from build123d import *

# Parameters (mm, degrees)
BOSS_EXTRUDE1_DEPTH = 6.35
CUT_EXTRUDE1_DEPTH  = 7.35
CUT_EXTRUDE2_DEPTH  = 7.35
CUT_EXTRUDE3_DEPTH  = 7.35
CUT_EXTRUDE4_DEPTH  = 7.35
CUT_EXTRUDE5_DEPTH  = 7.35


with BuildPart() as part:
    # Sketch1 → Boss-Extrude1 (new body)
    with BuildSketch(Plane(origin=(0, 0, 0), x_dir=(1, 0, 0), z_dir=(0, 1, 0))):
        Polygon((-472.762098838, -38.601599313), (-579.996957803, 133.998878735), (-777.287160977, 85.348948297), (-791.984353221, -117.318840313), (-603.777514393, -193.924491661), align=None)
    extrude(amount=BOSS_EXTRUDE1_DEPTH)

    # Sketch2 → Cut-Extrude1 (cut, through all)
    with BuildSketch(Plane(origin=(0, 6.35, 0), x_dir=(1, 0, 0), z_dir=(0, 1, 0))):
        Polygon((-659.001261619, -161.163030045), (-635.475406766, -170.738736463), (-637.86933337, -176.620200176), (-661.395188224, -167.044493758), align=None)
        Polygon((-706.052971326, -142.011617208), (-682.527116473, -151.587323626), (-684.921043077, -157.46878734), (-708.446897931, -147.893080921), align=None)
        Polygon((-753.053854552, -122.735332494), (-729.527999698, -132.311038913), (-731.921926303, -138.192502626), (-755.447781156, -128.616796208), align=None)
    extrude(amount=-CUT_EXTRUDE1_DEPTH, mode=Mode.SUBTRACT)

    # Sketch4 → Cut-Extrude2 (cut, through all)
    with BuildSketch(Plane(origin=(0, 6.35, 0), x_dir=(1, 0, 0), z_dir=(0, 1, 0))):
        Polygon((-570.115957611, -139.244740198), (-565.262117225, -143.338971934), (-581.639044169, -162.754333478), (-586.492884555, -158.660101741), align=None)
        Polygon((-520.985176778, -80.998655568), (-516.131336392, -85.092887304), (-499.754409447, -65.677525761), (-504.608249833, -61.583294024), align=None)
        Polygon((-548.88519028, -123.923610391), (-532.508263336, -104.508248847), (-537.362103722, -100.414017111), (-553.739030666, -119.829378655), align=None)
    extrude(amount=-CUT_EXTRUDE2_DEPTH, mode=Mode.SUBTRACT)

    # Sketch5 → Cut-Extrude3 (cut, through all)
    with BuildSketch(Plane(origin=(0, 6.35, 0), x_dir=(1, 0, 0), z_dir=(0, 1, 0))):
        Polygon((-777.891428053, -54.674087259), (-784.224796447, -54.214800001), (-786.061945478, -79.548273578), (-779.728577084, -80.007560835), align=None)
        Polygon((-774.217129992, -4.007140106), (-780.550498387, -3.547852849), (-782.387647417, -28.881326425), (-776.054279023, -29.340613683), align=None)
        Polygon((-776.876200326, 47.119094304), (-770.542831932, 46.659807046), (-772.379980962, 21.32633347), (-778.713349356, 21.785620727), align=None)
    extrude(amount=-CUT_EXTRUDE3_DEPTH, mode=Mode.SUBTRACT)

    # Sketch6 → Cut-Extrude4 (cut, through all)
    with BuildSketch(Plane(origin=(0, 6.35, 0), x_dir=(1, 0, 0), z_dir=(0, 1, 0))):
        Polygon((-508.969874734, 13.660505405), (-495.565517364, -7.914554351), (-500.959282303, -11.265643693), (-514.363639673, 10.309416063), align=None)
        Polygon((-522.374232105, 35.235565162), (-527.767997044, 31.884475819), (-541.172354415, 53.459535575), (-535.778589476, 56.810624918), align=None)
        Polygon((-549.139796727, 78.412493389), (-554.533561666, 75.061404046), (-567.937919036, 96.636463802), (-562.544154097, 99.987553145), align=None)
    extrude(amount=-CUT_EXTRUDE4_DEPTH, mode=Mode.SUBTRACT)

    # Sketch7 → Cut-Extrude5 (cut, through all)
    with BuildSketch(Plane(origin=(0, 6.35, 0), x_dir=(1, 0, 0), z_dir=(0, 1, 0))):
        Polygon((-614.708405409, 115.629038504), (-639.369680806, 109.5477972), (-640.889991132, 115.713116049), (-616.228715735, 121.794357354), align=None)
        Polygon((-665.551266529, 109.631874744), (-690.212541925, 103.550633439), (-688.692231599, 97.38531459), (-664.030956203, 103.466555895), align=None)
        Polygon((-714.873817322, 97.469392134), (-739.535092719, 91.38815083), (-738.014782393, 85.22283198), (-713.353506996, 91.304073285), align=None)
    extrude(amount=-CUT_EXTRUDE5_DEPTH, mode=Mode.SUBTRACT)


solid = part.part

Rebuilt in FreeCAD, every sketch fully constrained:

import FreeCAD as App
import Part
import Sketcher
Q = App.Units.Quantity

doc = App.newDocument("Part")
body = doc.addObject("PartDesign::Body", "Body")

# Sketch on XZ plane
sketch1 = body.newObject("Sketcher::SketchObject", "Sketch")
sketch1.AttachmentSupport = (doc.getObject("XZ_Plane"), [""])
sketch1.MapMode = "FlatFace"
sketch1.addGeometry([
    Part.LineSegment(App.Vector(-472.762099, 38.601599, 0), App.Vector(-579.996958, -133.998879, 0)),  # 0
    Part.LineSegment(App.Vector(-579.996958, -133.998879, 0), App.Vector(-777.287161, -85.348948, 0)),  # 1
    Part.LineSegment(App.Vector(-777.287161, -85.348948, 0), App.Vector(-791.984353, 117.31884, 0)),  # 2
    Part.LineSegment(App.Vector(-791.984353, 117.31884, 0), App.Vector(-603.777514, 193.924492, 0)),  # 3
    Part.LineSegment(App.Vector(-603.777514, 193.924492, 0), App.Vector(-472.762099, 38.601599, 0)),  # 4
], False)
sketch1.addConstraint([
    Sketcher.Constraint("Coincident", 0, 2, 1, 1),
    Sketcher.Constraint("Coincident", 1, 2, 2, 1),
    Sketcher.Constraint("Coincident", 2, 2, 3, 1),
    Sketcher.Constraint("Coincident", 3, 2, 4, 1),
    Sketcher.Constraint("Coincident", 4, 2, 0, 1),
    Sketcher.Constraint("Equal", 0, 1),
    Sketcher.Constraint("Equal", 1, 2),
    Sketcher.Constraint("Equal", 2, 3),
    Sketcher.Constraint("Equal", 3, 4),
    Sketcher.Constraint("Distance", 0, Q("8 in")),
    Sketcher.Constraint("DistanceX", 4, 2, -1, 1, 472.762099),
    Sketcher.Constraint("DistanceY", -1, 1, 4, 2, 38.601599),
    Sketcher.Constraint("DistanceY", 0, 2, -1, 1, 133.998879),
    Sketcher.Constraint("DistanceX", 1, 2, -1, 1, 777.287161),
    Sketcher.Constraint("DistanceY", -1, 1, 2, 2, 117.31884),
])
pad1 = body.newObject("PartDesign::Pad", "Pad")
pad1.Profile = sketch1
pad1.Length = Q("0.25 in")
pad1.Reversed = True

# Sketch on XZ plane
sketch2 = body.newObject("Sketcher::SketchObject", "Sketch001")
sketch2.AttachmentSupport = (doc.getObject("XZ_Plane"), [""])
sketch2.MapMode = "FlatFace"
sketch2.AttachmentOffset = App.Placement(App.Vector(0, 0, -0.25 * 25.4), App.Rotation())
sketch2.addGeometry([
    Part.LineSegment(App.Vector(-635.475407, 170.738736, 0), App.Vector(-659.001262, 161.16303, 0)),  # 0
    Part.LineSegment(App.Vector(-659.001262, 161.16303, 0), App.Vector(-661.395188, 167.044494, 0)),  # 1
    Part.LineSegment(App.Vector(-661.395188, 167.044494, 0), App.Vector(-637.869333, 176.6202, 0)),  # 2
    Part.LineSegment(App.Vector(-637.869333, 176.6202, 0), App.Vector(-635.475407, 170.738736, 0)),  # 3
    Part.LineSegment(App.Vector(-682.527116, 151.587324, 0), App.Vector(-706.052971, 142.011617, 0)),  # 4
    Part.LineSegment(App.Vector(-706.052971, 142.011617, 0), App.Vector(-708.446898, 147.893081, 0)),  # 5
    Part.LineSegment(App.Vector(-708.446898, 147.893081, 0), App.Vector(-684.921043, 157.468787, 0)),  # 6
    Part.LineSegment(App.Vector(-684.921043, 157.468787, 0), App.Vector(-682.527116, 151.587324, 0)),  # 7
    Part.LineSegment(App.Vector(-729.528, 132.311039, 0), App.Vector(-753.053855, 122.735332, 0)),  # 8
    Part.LineSegment(App.Vector(-753.053855, 122.735332, 0), App.Vector(-755.447781, 128.616796, 0)),  # 9
    Part.LineSegment(App.Vector(-755.447781, 128.616796, 0), App.Vector(-731.921926, 138.192503, 0)),  # 10
    Part.LineSegment(App.Vector(-731.921926, 138.192503, 0), App.Vector(-729.528, 132.311039, 0)),  # 11
], False)
sketch2.addConstraint([
    Sketcher.Constraint("Coincident", 0, 2, 1, 1),
    Sketcher.Constraint("Coincident", 1, 2, 2, 1),
    Sketcher.Constraint("Coincident", 2, 2, 3, 1),
    Sketcher.Constraint("Coincident", 3, 2, 0, 1),
    Sketcher.Constraint("Coincident", 4, 2, 5, 1),
    Sketcher.Constraint("Coincident", 5, 2, 6, 1),
    Sketcher.Constraint("Coincident", 6, 2, 7, 1),
    Sketcher.Constraint("Coincident", 7, 2, 4, 1),
    Sketcher.Constraint("Coincident", 8, 2, 9, 1),
    Sketcher.Constraint("Coincident", 9, 2, 10, 1),
    Sketcher.Constraint("Coincident", 10, 2, 11, 1),
    Sketcher.Constraint("Coincident", 11, 2, 8, 1),
    Sketcher.Constraint("Perpendicular", 0, 1),
    Sketcher.Constraint("Perpendicular", 1, 2),
    Sketcher.Constraint("Perpendicular", 2, 3),
    Sketcher.Constraint("Perpendicular", 3, 4),
    Sketcher.Constraint("Perpendicular", 4, 5),
    Sketcher.Constraint("Perpendicular", 5, 6),
    Sketcher.Constraint("Perpendicular", 6, 7),
    Sketcher.Constraint("Perpendicular", 7, 8),
    Sketcher.Constraint("Perpendicular", 8, 9),
    Sketcher.Constraint("Perpendicular", 9, 10),
    Sketcher.Constraint("Perpendicular", 10, 11),
    Sketcher.Constraint("Equal", 2, 4),
    Sketcher.Constraint("Equal", 3, 5),
    Sketcher.Constraint("Equal", 6, 8),
    Sketcher.Constraint("Equal", 7, 9),
    Sketcher.Constraint("Distance", 0, Q("1 in")),
    Sketcher.Constraint("Distance", 1, Q("0.25 in")),
    Sketcher.Constraint("DistanceY", -1, 1, 2, 2, 176.6202),
    Sketcher.Constraint("DistanceX", 11, 2, -1, 1, 729.528),
    Sketcher.Constraint("DistanceX", 11, 2, 5, 2, 21.081102),
    Sketcher.Constraint("DistanceX", 0, 2, -1, 1, 659.001262),
    Sketcher.Constraint("DistanceY", -1, 1, 0, 2, 161.16303),
    Sketcher.Constraint("DistanceY", -1, 1, 5, 2, 147.893081),
    Sketcher.Constraint("DistanceY", -1, 1, 11, 2, 132.311039),
])
pocket1 = body.newObject("PartDesign::Pocket", "Pocket")
pocket1.Profile = sketch2
pocket1.Type = "ThroughAll"
pocket1.Reversed = True

# Sketch on XZ plane
sketch3 = body.newObject("Sketcher::SketchObject", "Sketch002")
sketch3.AttachmentSupport = (doc.getObject("XZ_Plane"), [""])
sketch3.MapMode = "FlatFace"
sketch3.AttachmentOffset = App.Placement(App.Vector(0, 0, -0.25 * 25.4), App.Rotation())
sketch3.addGeometry([
    Part.LineSegment(App.Vector(-565.262117, 143.338972, 0), App.Vector(-570.115958, 139.24474, 0)),  # 0
    Part.LineSegment(App.Vector(-570.115958, 139.24474, 0), App.Vector(-586.492885, 158.660102, 0)),  # 1
    Part.LineSegment(App.Vector(-586.492885, 158.660102, 0), App.Vector(-581.639044, 162.754333, 0)),  # 2
    Part.LineSegment(App.Vector(-581.639044, 162.754333, 0), App.Vector(-565.262117, 143.338972, 0)),  # 3
    Part.LineSegment(App.Vector(-520.985177, 80.998656, 0), App.Vector(-516.131336, 85.092887, 0)),  # 4
    Part.LineSegment(App.Vector(-516.131336, 85.092887, 0), App.Vector(-499.754409, 65.677526, 0)),  # 5
    Part.LineSegment(App.Vector(-499.754409, 65.677526, 0), App.Vector(-504.60825, 61.583294, 0)),  # 6
    Part.LineSegment(App.Vector(-504.60825, 61.583294, 0), App.Vector(-520.985177, 80.998656, 0)),  # 7
    Part.LineSegment(App.Vector(-548.88519, 123.92361, 0), App.Vector(-532.508263, 104.508249, 0)),  # 8
    Part.LineSegment(App.Vector(-532.508263, 104.508249, 0), App.Vector(-537.362104, 100.414017, 0)),  # 9
    Part.LineSegment(App.Vector(-537.362104, 100.414017, 0), App.Vector(-553.739031, 119.829379, 0)),  # 10
    Part.LineSegment(App.Vector(-553.739031, 119.829379, 0), App.Vector(-548.88519, 123.92361, 0)),  # 11
], False)
sketch3.addConstraint([
    Sketcher.Constraint("Coincident", 0, 2, 1, 1),
    Sketcher.Constraint("Coincident", 1, 2, 2, 1),
    Sketcher.Constraint("Coincident", 2, 2, 3, 1),
    Sketcher.Constraint("Coincident", 3, 2, 0, 1),
    Sketcher.Constraint("Coincident", 4, 2, 5, 1),
    Sketcher.Constraint("Coincident", 5, 2, 6, 1),
    Sketcher.Constraint("Coincident", 6, 2, 7, 1),
    Sketcher.Constraint("Coincident", 7, 2, 4, 1),
    Sketcher.Constraint("Coincident", 8, 2, 9, 1),
    Sketcher.Constraint("Coincident", 9, 2, 10, 1),
    Sketcher.Constraint("Coincident", 10, 2, 11, 1),
    Sketcher.Constraint("Coincident", 11, 2, 8, 1),
    Sketcher.Constraint("Perpendicular", 0, 1),
    Sketcher.Constraint("Perpendicular", 1, 2),
    Sketcher.Constraint("Perpendicular", 2, 3),
    Sketcher.Constraint("Perpendicular", 3, 4),
    Sketcher.Constraint("Perpendicular", 4, 5),
    Sketcher.Constraint("Perpendicular", 5, 6),
    Sketcher.Constraint("Perpendicular", 6, 7),
    Sketcher.Constraint("Parallel", 7, 8),
    Sketcher.Constraint("Perpendicular", 8, 9),
    Sketcher.Constraint("Perpendicular", 9, 10),
    Sketcher.Constraint("Perpendicular", 10, 11),
    Sketcher.Constraint("Equal", 2, 4),
    Sketcher.Constraint("Equal", 3, 5),
    Sketcher.Constraint("Equal", 7, 8),
    Sketcher.Constraint("Equal", 6, 9),
    Sketcher.Constraint("Distance", 1, Q("1 in")),
    Sketcher.Constraint("Distance", 0, Q("0.25 in")),
    Sketcher.Constraint("DistanceY", -1, 1, 1, 2, 158.660102),
    Sketcher.Constraint("DistanceY", -1, 1, 0, 2, 139.24474),
    Sketcher.Constraint("DistanceX", 5, 2, -1, 1, 499.754409),
    Sketcher.Constraint("DistanceY", -1, 1, 8, 2, 104.508249),
    Sketcher.Constraint("DistanceX", 10, 2, -1, 1, 553.739031),
    Sketcher.Constraint("DistanceX", 3, 2, 4, 2, 49.130781),
    Sketcher.Constraint("DistanceY", 4, 2, 8, 2, 19.415362),
])
pocket2 = body.newObject("PartDesign::Pocket", "Pocket001")
pocket2.Profile = sketch3
pocket2.Type = "ThroughAll"
pocket2.Reversed = True

# Sketch on XZ plane
sketch4 = body.newObject("Sketcher::SketchObject", "Sketch003")
sketch4.AttachmentSupport = (doc.getObject("XZ_Plane"), [""])
sketch4.MapMode = "FlatFace"
sketch4.AttachmentOffset = App.Placement(App.Vector(0, 0, -0.25 * 25.4), App.Rotation())
sketch4.addGeometry([
    Part.LineSegment(App.Vector(-777.891428, 54.674087, 0), App.Vector(-784.224796, 54.2148, 0)),  # 0
    Part.LineSegment(App.Vector(-784.224796, 54.2148, 0), App.Vector(-786.061945, 79.548274, 0)),  # 1
    Part.LineSegment(App.Vector(-786.061945, 79.548274, 0), App.Vector(-779.728577, 80.007561, 0)),  # 2
    Part.LineSegment(App.Vector(-779.728577, 80.007561, 0), App.Vector(-777.891428, 54.674087, 0)),  # 3
    Part.LineSegment(App.Vector(-774.21713, 4.00714, 0), App.Vector(-780.550498, 3.547853, 0)),  # 4
    Part.LineSegment(App.Vector(-780.550498, 3.547853, 0), App.Vector(-782.387647, 28.881326, 0)),  # 5
    Part.LineSegment(App.Vector(-782.387647, 28.881326, 0), App.Vector(-776.054279, 29.340614, 0)),  # 6
    Part.LineSegment(App.Vector(-776.054279, 29.340614, 0), App.Vector(-774.21713, 4.00714, 0)),  # 7
    Part.LineSegment(App.Vector(-770.542832, -46.659807, 0), App.Vector(-776.8762, -47.119094, 0)),  # 8
    Part.LineSegment(App.Vector(-776.8762, -47.119094, 0), App.Vector(-778.713349, -21.785621, 0)),  # 9
    Part.LineSegment(App.Vector(-778.713349, -21.785621, 0), App.Vector(-772.379981, -21.326333, 0)),  # 10
    Part.LineSegment(App.Vector(-772.379981, -21.326333, 0), App.Vector(-770.542832, -46.659807, 0)),  # 11
], False)
sketch4.addConstraint([
    Sketcher.Constraint("Coincident", 0, 2, 1, 1),
    Sketcher.Constraint("Coincident", 1, 2, 2, 1),
    Sketcher.Constraint("Coincident", 2, 2, 3, 1),
    Sketcher.Constraint("Coincident", 3, 2, 0, 1),
    Sketcher.Constraint("Coincident", 4, 2, 5, 1),
    Sketcher.Constraint("Coincident", 5, 2, 6, 1),
    Sketcher.Constraint("Coincident", 6, 2, 7, 1),
    Sketcher.Constraint("Coincident", 7, 2, 4, 1),
    Sketcher.Constraint("Coincident", 8, 2, 9, 1),
    Sketcher.Constraint("Coincident", 9, 2, 10, 1),
    Sketcher.Constraint("Coincident", 10, 2, 11, 1),
    Sketcher.Constraint("Coincident", 11, 2, 8, 1),
    Sketcher.Constraint("Perpendicular", 0, 1),
    Sketcher.Constraint("Perpendicular", 1, 2),
    Sketcher.Constraint("Perpendicular", 2, 3),
    Sketcher.Constraint("Perpendicular", 3, 4),
    Sketcher.Constraint("Perpendicular", 4, 5),
    Sketcher.Constraint("Perpendicular", 5, 6),
    Sketcher.Constraint("Perpendicular", 6, 7),
    Sketcher.Constraint("Perpendicular", 7, 8),
    Sketcher.Constraint("Perpendicular", 8, 9),
    Sketcher.Constraint("Perpendicular", 9, 10),
    Sketcher.Constraint("Perpendicular", 10, 11),
    Sketcher.Constraint("Equal", 2, 4),
    Sketcher.Constraint("Equal", 3, 5),
    Sketcher.Constraint("Equal", 6, 8),
    Sketcher.Constraint("Equal", 7, 9),
    Sketcher.Constraint("Distance", 1, Q("1 in")),
    Sketcher.Constraint("Distance", 0, Q("0.25 in")),
    Sketcher.Constraint("DistanceY", -1, 1, 0, 2, 54.2148),
    Sketcher.Constraint("DistanceX", 4, 2, -1, 1, 780.550498),
    Sketcher.Constraint("DistanceX", 8, 2, -1, 1, 776.8762),
    Sketcher.Constraint("DistanceX", 0, 2, 4, 2, 3.674298),
    Sketcher.Constraint("DistanceY", -1, 1, 2, 2, 80.007561),
    Sketcher.Constraint("DistanceY", -1, 1, 7, 2, 4.00714),
    Sketcher.Constraint("DistanceY", 9, 2, -1, 1, 21.785621),
])
pocket3 = body.newObject("PartDesign::Pocket", "Pocket002")
pocket3.Profile = sketch4
pocket3.Type = "ThroughAll"
pocket3.Reversed = True

# Sketch on XZ plane
sketch5 = body.newObject("Sketcher::SketchObject", "Sketch004")
sketch5.AttachmentSupport = (doc.getObject("XZ_Plane"), [""])
sketch5.MapMode = "FlatFace"
sketch5.AttachmentOffset = App.Placement(App.Vector(0, 0, -0.25 * 25.4), App.Rotation())
sketch5.addGeometry([
    Part.LineSegment(App.Vector(-495.565517, 7.914554, 0), App.Vector(-508.969875, -13.660505, 0)),  # 0
    Part.LineSegment(App.Vector(-508.969875, -13.660505, 0), App.Vector(-514.36364, -10.309416, 0)),  # 1
    Part.LineSegment(App.Vector(-514.36364, -10.309416, 0), App.Vector(-500.959282, 11.265644, 0)),  # 2
    Part.LineSegment(App.Vector(-500.959282, 11.265644, 0), App.Vector(-495.565517, 7.914554, 0)),  # 3
    Part.LineSegment(App.Vector(-527.767997, -31.884476, 0), App.Vector(-522.374232, -35.235565, 0)),  # 4
    Part.LineSegment(App.Vector(-522.374232, -35.235565, 0), App.Vector(-535.778589, -56.810625, 0)),  # 5
    Part.LineSegment(App.Vector(-535.778589, -56.810625, 0), App.Vector(-541.172354, -53.459536, 0)),  # 6
    Part.LineSegment(App.Vector(-541.172354, -53.459536, 0), App.Vector(-527.767997, -31.884476, 0)),  # 7
    Part.LineSegment(App.Vector(-554.533562, -75.061404, 0), App.Vector(-549.139797, -78.412493, 0)),  # 8
    Part.LineSegment(App.Vector(-549.139797, -78.412493, 0), App.Vector(-562.544154, -99.987553, 0)),  # 9
    Part.LineSegment(App.Vector(-562.544154, -99.987553, 0), App.Vector(-567.937919, -96.636464, 0)),  # 10
    Part.LineSegment(App.Vector(-567.937919, -96.636464, 0), App.Vector(-554.533562, -75.061404, 0)),  # 11
], False)
sketch5.addConstraint([
    Sketcher.Constraint("Coincident", 0, 2, 1, 1),
    Sketcher.Constraint("Coincident", 1, 2, 2, 1),
    Sketcher.Constraint("Coincident", 2, 2, 3, 1),
    Sketcher.Constraint("Coincident", 3, 2, 0, 1),
    Sketcher.Constraint("Coincident", 4, 2, 5, 1),
    Sketcher.Constraint("Coincident", 5, 2, 6, 1),
    Sketcher.Constraint("Coincident", 6, 2, 7, 1),
    Sketcher.Constraint("Coincident", 7, 2, 4, 1),
    Sketcher.Constraint("Coincident", 8, 2, 9, 1),
    Sketcher.Constraint("Coincident", 9, 2, 10, 1),
    Sketcher.Constraint("Coincident", 10, 2, 11, 1),
    Sketcher.Constraint("Coincident", 11, 2, 8, 1),
    Sketcher.Constraint("Perpendicular", 0, 1),
    Sketcher.Constraint("Perpendicular", 1, 2),
    Sketcher.Constraint("Perpendicular", 2, 3),
    Sketcher.Constraint("Parallel", 3, 4),
    Sketcher.Constraint("Perpendicular", 4, 5),
    Sketcher.Constraint("Perpendicular", 5, 6),
    Sketcher.Constraint("Perpendicular", 6, 7),
    Sketcher.Constraint("Perpendicular", 7, 8),
    Sketcher.Constraint("Perpendicular", 8, 9),
    Sketcher.Constraint("Perpendicular", 9, 10),
    Sketcher.Constraint("Perpendicular", 10, 11),
    Sketcher.Constraint("Equal", 3, 4),
    Sketcher.Constraint("Equal", 2, 5),
    Sketcher.Constraint("Equal", 6, 8),
    Sketcher.Constraint("Equal", 7, 9),
    Sketcher.Constraint("Distance", 0, Q("1 in")),
    Sketcher.Constraint("Distance", 1, Q("0.25 in")),
    Sketcher.Constraint("DistanceY", 8, 2, 6, 2, Q("0.9823999 in")),
    Sketcher.Constraint("DistanceX", 8, 2, 7, 2, 21.3718),
    Sketcher.Constraint("DistanceX", 1, 2, -1, 1, 514.36364),
    Sketcher.Constraint("DistanceX", 5, 2, -1, 1, 535.778589),
    Sketcher.Constraint("DistanceX", 10, 2, -1, 1, 567.937919),
    Sketcher.Constraint("DistanceY", 4, 2, 0, 2, 21.57506),
    Sketcher.Constraint("DistanceY", 0, 2, -1, 1, 13.660505),
])
pocket4 = body.newObject("PartDesign::Pocket", "Pocket003")
pocket4.Profile = sketch5
pocket4.Type = "ThroughAll"
pocket4.Reversed = True

# Sketch on XZ plane
sketch6 = body.newObject("Sketcher::SketchObject", "Sketch005")
sketch6.AttachmentSupport = (doc.getObject("XZ_Plane"), [""])
sketch6.MapMode = "FlatFace"
sketch6.AttachmentOffset = App.Placement(App.Vector(0, 0, -0.25 * 25.4), App.Rotation())
sketch6.addGeometry([
    Part.LineSegment(App.Vector(-639.369681, -109.547797, 0), App.Vector(-614.708405, -115.629039, 0)),  # 0
    Part.LineSegment(App.Vector(-614.708405, -115.629039, 0), App.Vector(-616.228716, -121.794357, 0)),  # 1
    Part.LineSegment(App.Vector(-616.228716, -121.794357, 0), App.Vector(-640.889991, -115.713116, 0)),  # 2
    Part.LineSegment(App.Vector(-640.889991, -115.713116, 0), App.Vector(-639.369681, -109.547797, 0)),  # 3
    Part.LineSegment(App.Vector(-665.551267, -109.631875, 0), App.Vector(-690.212542, -103.550633, 0)),  # 4
    Part.LineSegment(App.Vector(-690.212542, -103.550633, 0), App.Vector(-688.692232, -97.385315, 0)),  # 5
    Part.LineSegment(App.Vector(-688.692232, -97.385315, 0), App.Vector(-664.030956, -103.466556, 0)),  # 6
    Part.LineSegment(App.Vector(-664.030956, -103.466556, 0), App.Vector(-665.551267, -109.631875, 0)),  # 7
    Part.LineSegment(App.Vector(-714.873817, -97.469392, 0), App.Vector(-739.535093, -91.388151, 0)),  # 8
    Part.LineSegment(App.Vector(-739.535093, -91.388151, 0), App.Vector(-738.014782, -85.222832, 0)),  # 9
    Part.LineSegment(App.Vector(-738.014782, -85.222832, 0), App.Vector(-713.353507, -91.304073, 0)),  # 10
    Part.LineSegment(App.Vector(-713.353507, -91.304073, 0), App.Vector(-714.873817, -97.469392, 0)),  # 11
], False)
sketch6.addConstraint([
    Sketcher.Constraint("Coincident", 0, 2, 1, 1),
    Sketcher.Constraint("Coincident", 1, 2, 2, 1),
    Sketcher.Constraint("Coincident", 2, 2, 3, 1),
    Sketcher.Constraint("Coincident", 3, 2, 0, 1),
    Sketcher.Constraint("Coincident", 4, 2, 5, 1),
    Sketcher.Constraint("Coincident", 5, 2, 6, 1),
    Sketcher.Constraint("Coincident", 6, 2, 7, 1),
    Sketcher.Constraint("Coincident", 7, 2, 4, 1),
    Sketcher.Constraint("Coincident", 8, 2, 9, 1),
    Sketcher.Constraint("Coincident", 9, 2, 10, 1),
    Sketcher.Constraint("Coincident", 10, 2, 11, 1),
    Sketcher.Constraint("Coincident", 11, 2, 8, 1),
    Sketcher.Constraint("Perpendicular", 0, 1),
    Sketcher.Constraint("Perpendicular", 1, 2),
    Sketcher.Constraint("Perpendicular", 2, 3),
    Sketcher.Constraint("Perpendicular", 3, 4),
    Sketcher.Constraint("Perpendicular", 4, 5),
    Sketcher.Constraint("Perpendicular", 5, 6),
    Sketcher.Constraint("Perpendicular", 6, 7),
    Sketcher.Constraint("Perpendicular", 7, 8),
    Sketcher.Constraint("Perpendicular", 8, 9),
    Sketcher.Constraint("Perpendicular", 9, 10),
    Sketcher.Constraint("Perpendicular", 10, 11),
    Sketcher.Constraint("Equal", 2, 4),
    Sketcher.Constraint("Equal", 3, 5),
    Sketcher.Constraint("Equal", 6, 8),
    Sketcher.Constraint("Equal", 7, 9),
    Sketcher.Constraint("Distance", 0, Q("1 in")),
    Sketcher.Constraint("Distance", 1, Q("0.25 in")),
    Sketcher.Constraint("DistanceX", 9, 2, -1, 1, Q("29.0557001 in")),
    Sketcher.Constraint("DistanceY", 2, 2, 5, 2, 18.327801),
    Sketcher.Constraint("DistanceX", 8, 2, 2, 2, 98.645102),
    Sketcher.Constraint("DistanceY", 4, 2, 9, 2, 18.327801),
    Sketcher.Constraint("DistanceY", 0, 2, -1, 1, 115.629039),
    Sketcher.Constraint("DistanceX", 2, 2, -1, 1, 640.889991),
    Sketcher.Constraint("DistanceX", 4, 2, -1, 1, 690.212542),
])
pocket5 = body.newObject("PartDesign::Pocket", "Pocket004")
pocket5.Profile = sketch6
pocket5.Type = "ThroughAll"
pocket5.Reversed = True

doc.recompute()
